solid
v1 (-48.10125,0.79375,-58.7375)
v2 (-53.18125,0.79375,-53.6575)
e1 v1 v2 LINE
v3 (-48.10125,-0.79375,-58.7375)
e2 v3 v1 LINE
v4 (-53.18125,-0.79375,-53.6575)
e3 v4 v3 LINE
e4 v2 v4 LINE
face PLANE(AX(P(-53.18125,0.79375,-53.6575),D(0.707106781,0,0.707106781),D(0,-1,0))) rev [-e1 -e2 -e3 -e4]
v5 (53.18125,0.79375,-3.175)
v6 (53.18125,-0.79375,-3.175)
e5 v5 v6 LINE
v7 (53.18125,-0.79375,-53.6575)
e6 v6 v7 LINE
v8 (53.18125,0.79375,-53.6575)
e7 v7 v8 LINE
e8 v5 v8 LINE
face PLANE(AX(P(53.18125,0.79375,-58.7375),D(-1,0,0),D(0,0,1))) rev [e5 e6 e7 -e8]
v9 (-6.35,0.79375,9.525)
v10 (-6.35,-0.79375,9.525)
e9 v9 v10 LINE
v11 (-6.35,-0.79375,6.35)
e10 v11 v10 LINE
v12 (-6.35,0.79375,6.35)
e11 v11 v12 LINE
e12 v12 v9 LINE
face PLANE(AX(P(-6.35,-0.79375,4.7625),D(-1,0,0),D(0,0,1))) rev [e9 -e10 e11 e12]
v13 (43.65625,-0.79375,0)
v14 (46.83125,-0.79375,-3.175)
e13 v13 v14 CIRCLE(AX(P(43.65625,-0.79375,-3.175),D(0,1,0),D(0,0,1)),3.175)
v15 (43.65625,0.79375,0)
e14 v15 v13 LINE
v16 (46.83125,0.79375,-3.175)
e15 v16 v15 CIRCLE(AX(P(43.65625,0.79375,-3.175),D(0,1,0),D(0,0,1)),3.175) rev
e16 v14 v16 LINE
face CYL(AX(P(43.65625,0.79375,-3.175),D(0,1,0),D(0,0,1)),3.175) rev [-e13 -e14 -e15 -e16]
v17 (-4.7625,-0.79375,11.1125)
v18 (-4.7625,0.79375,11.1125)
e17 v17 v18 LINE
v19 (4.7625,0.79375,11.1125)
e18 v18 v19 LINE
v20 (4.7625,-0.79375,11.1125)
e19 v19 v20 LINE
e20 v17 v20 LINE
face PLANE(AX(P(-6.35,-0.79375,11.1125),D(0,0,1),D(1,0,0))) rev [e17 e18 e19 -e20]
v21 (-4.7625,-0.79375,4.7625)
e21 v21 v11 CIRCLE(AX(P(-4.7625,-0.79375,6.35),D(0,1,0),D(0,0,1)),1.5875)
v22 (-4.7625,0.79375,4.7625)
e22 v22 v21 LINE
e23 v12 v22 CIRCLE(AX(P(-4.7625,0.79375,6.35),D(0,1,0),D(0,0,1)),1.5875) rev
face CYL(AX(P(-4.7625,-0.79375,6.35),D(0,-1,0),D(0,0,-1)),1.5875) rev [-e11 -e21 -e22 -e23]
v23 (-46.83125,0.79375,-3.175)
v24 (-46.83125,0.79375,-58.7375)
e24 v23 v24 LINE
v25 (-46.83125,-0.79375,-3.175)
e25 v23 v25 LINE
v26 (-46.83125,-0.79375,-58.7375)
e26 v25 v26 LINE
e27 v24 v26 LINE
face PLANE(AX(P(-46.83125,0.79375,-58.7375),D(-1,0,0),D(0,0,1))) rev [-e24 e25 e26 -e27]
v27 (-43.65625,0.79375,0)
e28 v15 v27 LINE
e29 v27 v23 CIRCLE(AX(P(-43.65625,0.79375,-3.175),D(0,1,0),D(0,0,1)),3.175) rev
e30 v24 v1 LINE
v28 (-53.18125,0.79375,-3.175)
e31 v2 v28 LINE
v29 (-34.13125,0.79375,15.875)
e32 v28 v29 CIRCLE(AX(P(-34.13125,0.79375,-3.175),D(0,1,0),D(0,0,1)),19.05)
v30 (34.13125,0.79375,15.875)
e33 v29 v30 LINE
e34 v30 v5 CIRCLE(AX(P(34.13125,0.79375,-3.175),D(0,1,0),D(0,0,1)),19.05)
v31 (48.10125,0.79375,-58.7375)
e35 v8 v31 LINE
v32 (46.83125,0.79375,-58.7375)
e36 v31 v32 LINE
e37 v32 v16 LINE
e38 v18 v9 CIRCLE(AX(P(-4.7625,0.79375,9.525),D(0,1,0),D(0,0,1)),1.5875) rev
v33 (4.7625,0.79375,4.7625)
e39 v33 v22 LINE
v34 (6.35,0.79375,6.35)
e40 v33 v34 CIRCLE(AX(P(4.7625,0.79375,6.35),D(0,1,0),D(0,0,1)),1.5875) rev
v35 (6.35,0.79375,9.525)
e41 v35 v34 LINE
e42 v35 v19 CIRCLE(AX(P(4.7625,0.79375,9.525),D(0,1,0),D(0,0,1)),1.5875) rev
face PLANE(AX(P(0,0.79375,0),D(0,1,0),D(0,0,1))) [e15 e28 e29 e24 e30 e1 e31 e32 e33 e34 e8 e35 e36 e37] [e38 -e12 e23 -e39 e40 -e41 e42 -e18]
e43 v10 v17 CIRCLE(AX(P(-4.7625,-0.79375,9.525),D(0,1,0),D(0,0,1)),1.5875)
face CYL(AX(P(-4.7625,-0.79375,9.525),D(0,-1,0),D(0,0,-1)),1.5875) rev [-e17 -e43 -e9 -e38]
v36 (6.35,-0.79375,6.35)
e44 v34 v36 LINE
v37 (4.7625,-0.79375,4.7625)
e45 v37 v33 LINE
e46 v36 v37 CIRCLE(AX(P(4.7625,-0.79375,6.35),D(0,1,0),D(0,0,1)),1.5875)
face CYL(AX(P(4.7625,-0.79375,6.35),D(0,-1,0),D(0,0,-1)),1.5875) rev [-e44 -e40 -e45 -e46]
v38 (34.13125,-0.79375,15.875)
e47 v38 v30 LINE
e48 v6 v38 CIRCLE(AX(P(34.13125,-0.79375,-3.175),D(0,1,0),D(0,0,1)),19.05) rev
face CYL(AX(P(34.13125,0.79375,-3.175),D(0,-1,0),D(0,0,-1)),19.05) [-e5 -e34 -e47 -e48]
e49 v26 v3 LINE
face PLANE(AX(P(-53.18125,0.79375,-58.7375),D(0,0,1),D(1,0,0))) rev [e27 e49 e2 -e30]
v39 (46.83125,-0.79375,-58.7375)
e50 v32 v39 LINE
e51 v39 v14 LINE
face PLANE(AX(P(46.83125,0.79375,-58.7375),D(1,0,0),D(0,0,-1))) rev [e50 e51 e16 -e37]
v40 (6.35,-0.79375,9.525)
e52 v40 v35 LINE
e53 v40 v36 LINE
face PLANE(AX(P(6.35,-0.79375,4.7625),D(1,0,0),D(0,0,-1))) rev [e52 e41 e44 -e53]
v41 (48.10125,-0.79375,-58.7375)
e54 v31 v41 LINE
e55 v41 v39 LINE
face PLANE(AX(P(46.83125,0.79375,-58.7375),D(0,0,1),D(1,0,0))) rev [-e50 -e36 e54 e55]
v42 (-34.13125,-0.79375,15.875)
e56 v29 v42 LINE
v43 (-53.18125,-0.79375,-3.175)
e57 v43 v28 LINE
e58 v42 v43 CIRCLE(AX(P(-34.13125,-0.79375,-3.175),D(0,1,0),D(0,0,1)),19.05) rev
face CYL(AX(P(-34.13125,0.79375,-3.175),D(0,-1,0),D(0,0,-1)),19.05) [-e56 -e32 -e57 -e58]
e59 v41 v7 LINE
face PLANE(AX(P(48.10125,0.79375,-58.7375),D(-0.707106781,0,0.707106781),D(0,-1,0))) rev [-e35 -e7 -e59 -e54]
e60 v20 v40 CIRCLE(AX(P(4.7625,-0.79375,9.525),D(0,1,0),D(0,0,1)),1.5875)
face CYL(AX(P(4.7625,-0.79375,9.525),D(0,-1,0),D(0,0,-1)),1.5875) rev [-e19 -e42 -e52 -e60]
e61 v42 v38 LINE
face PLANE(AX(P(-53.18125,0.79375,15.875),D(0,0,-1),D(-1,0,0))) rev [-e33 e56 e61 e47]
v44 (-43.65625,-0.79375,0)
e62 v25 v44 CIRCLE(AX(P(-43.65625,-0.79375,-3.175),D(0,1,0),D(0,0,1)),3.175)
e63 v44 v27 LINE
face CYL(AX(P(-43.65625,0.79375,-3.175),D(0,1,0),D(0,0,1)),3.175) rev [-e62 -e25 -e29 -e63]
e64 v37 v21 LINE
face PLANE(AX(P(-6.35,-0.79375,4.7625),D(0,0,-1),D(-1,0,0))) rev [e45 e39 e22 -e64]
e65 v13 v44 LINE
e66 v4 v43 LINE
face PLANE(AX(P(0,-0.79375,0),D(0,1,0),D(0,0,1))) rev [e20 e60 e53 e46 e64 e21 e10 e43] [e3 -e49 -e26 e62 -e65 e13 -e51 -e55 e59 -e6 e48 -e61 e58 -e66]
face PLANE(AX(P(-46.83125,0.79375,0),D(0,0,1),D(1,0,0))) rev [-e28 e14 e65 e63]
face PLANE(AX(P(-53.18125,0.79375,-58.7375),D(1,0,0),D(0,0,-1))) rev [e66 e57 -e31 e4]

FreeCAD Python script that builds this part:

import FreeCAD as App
import Part
import Sketcher
Q = App.Units.Quantity


def edges_at(feature, points):
    """Names of the edges that pass closest to the given points."""
    edges = feature.Shape.Edges
    near = lambda p: min(range(len(edges)), key=lambda i: edges[i].distToShape(Part.Vertex(*p))[0])
    return sorted({f"Edge{near(p) + 1}" for p in points})

doc = App.newDocument("Part")
params = doc.addObject("Spreadsheet::Sheet", "Params")
for row, (alias, value) in enumerate([
    ("sketch1_width", "0.25 in"),
    ("sketch1_width2", "4.1875 in"),
    ("sketch1_height", "2.3125 in"),
    ("sketch1_height2", "2.9375 in"),
    ("pad1_length", "0.0625 in"),
    ("fillet_radius", "0.75 in"),
    ("sketch2_width", "0.5 in"),
    ("sketch2_height", "0.25 in"),
    ("fillet2_radius", "0.0625 in"),
    ("chamfer_size", "0.2 in"),
    ("fillet3_radius", "0.125 in"),
], start=1):
    params.set(f"A{row}", alias)
    params.set(f"B{row}", "=" + value)
    params.setAlias(f"B{row}", alias)

body = doc.addObject("PartDesign::Body", "Body")

# Sketch on XZ plane
sketch1 = doc.addObject("Sketcher::SketchObject", "Sketch")
body.addObject(sketch1)
sketch1.AttachmentSupport = (doc.XZ_Plane, [""])
sketch1.MapMode = "FlatFace"
sketch1.addGeometry(Part.LineSegment(App.Vector(-47, 0, 0), App.Vector(-47, -59, 0)), False)
sketch1.addGeometry(Part.LineSegment(App.Vector(-47, -59, 0), App.Vector(-53, -59, 0)), False)
sketch1.addGeometry(Part.LineSegment(App.Vector(-53, -59, 0), App.Vector(-53, 16, 0)), False)
sketch1.addGeometry(Part.LineSegment(App.Vector(-53, 16, 0), App.Vector(53, 16, 0)), False)
sketch1.addGeometry(Part.LineSegment(App.Vector(53, 16, 0), App.Vector(53, -59, 0)), False)
sketch1.addGeometry(Part.LineSegment(App.Vector(53, -59, 0), App.Vector(47, -59, 0)), False)
sketch1.addGeometry(Part.LineSegment(App.Vector(47, -59, 0), App.Vector(47, 0, 0)), False)
sketch1.addGeometry(Part.LineSegment(App.Vector(47, 0, 0), App.Vector(-47, 0, 0)), False)
sketch1.addConstraint(Sketcher.Constraint("Coincident", 0, 2, 1, 1))
sketch1.addConstraint(Sketcher.Constraint("Coincident", 1, 2, 2, 1))
sketch1.addConstraint(Sketcher.Constraint("Coincident", 2, 2, 3, 1))
sketch1.addConstraint(Sketcher.Constraint("Coincident", 3, 2, 4, 1))
sketch1.addConstraint(Sketcher.Constraint("Coincident", 4, 2, 5, 1))
sketch1.addConstraint(Sketcher.Constraint("Coincident", 5, 2, 6, 1))
sketch1.addConstraint(Sketcher.Constraint("Coincident", 6, 2, 7, 1))
sketch1.addConstraint(Sketcher.Constraint("Coincident", 7, 2, 0, 1))
sketch1.addConstraint(Sketcher.Constraint("Vertical", 0))
sketch1.addConstraint(Sketcher.Constraint("Horizontal", 1))
sketch1.addConstraint(Sketcher.Constraint("Vertical", 2))
sketch1.addConstraint(Sketcher.Constraint("Horizontal", 3))
sketch1.addConstraint(Sketcher.Constraint("Vertical", 4))
sketch1.addConstraint(Sketcher.Constraint("Horizontal", 5))
sketch1.addConstraint(Sketcher.Constraint("Vertical", 6))
sketch1.addConstraint(Sketcher.Constraint("Horizontal", 7))
sketch1.addConstraint(Sketcher.Constraint("Symmetric", 6, 2, 7, 2, -1, 1))
sketch1.addConstraint(Sketcher.Constraint("Symmetric", 1, 2, 4, 2, -2))
sketch1.addConstraint(Sketcher.Constraint("DistanceX", 1, 2, 1, 1, Q("0.25 in")))
sketch1.addConstraint(Sketcher.Constraint("DistanceX", 3, 1, 3, 2, Q("4.1875 in")))
sketch1.addConstraint(Sketcher.Constraint("DistanceY", 0, 2, 0, 1, Q("2.3125 in")))
sketch1.addConstraint(Sketcher.Constraint("DistanceY", 2, 1, 2, 2, Q("2.9375 in")))
sketch1.setExpression("Constraints[18]", "Params.sketch1_width")
sketch1.setExpression("Constraints[19]", "Params.sketch1_width2")
sketch1.setExpression("Constraints[20]", "Params.sketch1_height")
sketch1.setExpression("Constraints[21]", "Params.sketch1_height2")
pad1 = doc.addObject("PartDesign::Pad", "Pad")
body.addObject(pad1)
pad1.Profile = sketch1
pad1.setExpression("Length", "Params.pad1_length")
pad1.Midplane = True
doc.recompute()

fillet = doc.addObject("PartDesign::Fillet", "Fillet")
body.addObject(fillet)
fillet.Base = (pad1, edges_at(pad1, [(53.181, 0, 15.875), (-53.181, 0, 15.875)]))
fillet.setExpression("Radius", "Params.fillet_radius")

# Sketch on XZ plane
sketch2 = doc.addObject("Sketcher::SketchObject", "Sketch001")
body.addObject(sketch2)
sketch2.AttachmentSupport = (doc.XZ_Plane, [""])
sketch2.MapMode = "FlatFace"
sketch2.AttachmentOffset = App.Placement(App.Vector(0, 0, -0.03125 * 25.4), App.Rotation())
sketch2.addGeometry(Part.LineSegment(App.Vector(-6, 5, 0), App.Vector(-6, 11, 0)), False)
sketch2.addGeometry(Part.LineSegment(App.Vector(-6, 11, 0), App.Vector(6, 11, 0)), False)
sketch2.addGeometry(Part.LineSegment(App.Vector(6, 11, 0), App.Vector(6, 5, 0)), False)
sketch2.addGeometry(Part.LineSegment(App.Vector(6, 5, 0), App.Vector(-6, 5, 0)), False)
sketch2.addConstraint(Sketcher.Constraint("Coincident", 0, 2, 1, 1))
sketch2.addConstraint(Sketcher.Constraint("Coincident", 1, 2, 2, 1))
sketch2.addConstraint(Sketcher.Constraint("Coincident", 2, 2, 3, 1))
sketch2.addConstraint(Sketcher.Constraint("Coincident", 3, 2, 0, 1))
sketch2.addConstraint(Sketcher.Constraint("Vertical", 0))
sketch2.addConstraint(Sketcher.Constraint("Horizontal", 1))
sketch2.addConstraint(Sketcher.Constraint("Vertical", 2))
sketch2.addConstraint(Sketcher.Constraint("Horizontal", 3))
sketch2.addConstraint(Sketcher.Constraint("DistanceX", 1, 1, 1, 2, Q("0.5 in")))
sketch2.addConstraint(Sketcher.Constraint("DistanceY", 0, 1, 0, 2, Q("0.25 in")))
sketch2.addConstraint(Sketcher.Constraint("DistanceX", 0, 2, -1, 1, Q("0.25 in")))
sketch2.addConstraint(Sketcher.Constraint("DistanceY", -1, 1, 0, 2, Q("0.4375 in")))
sketch2.setExpression("Constraints[8]", "Params.sketch2_width")
sketch2.setExpression("Constraints[9]", "Params.sketch2_height")
pocket1 = doc.addObject("PartDesign::Pocket", "Pocket")
body.addObject(pocket1)
pocket1.Profile = sketch2
pocket1.Type = "ThroughAll"
pocket1.Midplane = True
doc.recompute()

fillet2 = doc.addObject("PartDesign::Fillet", "Fillet001")
body.addObject(fillet2)
fillet2.Base = (pocket1, edges_at(pocket1, [
    (6.35, 0, 4.763),
    (6.35, 0, 11.113),
    (-6.35, 0, 11.113),
    (-6.35, 0, 4.763),
]))
fillet2.setExpression("Radius", "Params.fillet2_radius")
doc.recompute()

chamfer = doc.addObject("PartDesign::Chamfer", "Chamfer")
body.addObject(chamfer)
chamfer.Base = (fillet2, edges_at(fillet2, [(-53.181, 0, -58.737), (53.181, 0, -58.737)]))
chamfer.setExpression("Size", "Params.chamfer_size")
doc.recompute()

fillet3 = doc.addObject("PartDesign::Fillet", "Fillet002")
body.addObject(fillet3)
fillet3.Base = (chamfer, edges_at(chamfer, [(-46.831, 0, 0), (46.831, 0, 0)]))
fillet3.setExpression("Radius", "Params.fillet3_radius")

doc.recompute()
